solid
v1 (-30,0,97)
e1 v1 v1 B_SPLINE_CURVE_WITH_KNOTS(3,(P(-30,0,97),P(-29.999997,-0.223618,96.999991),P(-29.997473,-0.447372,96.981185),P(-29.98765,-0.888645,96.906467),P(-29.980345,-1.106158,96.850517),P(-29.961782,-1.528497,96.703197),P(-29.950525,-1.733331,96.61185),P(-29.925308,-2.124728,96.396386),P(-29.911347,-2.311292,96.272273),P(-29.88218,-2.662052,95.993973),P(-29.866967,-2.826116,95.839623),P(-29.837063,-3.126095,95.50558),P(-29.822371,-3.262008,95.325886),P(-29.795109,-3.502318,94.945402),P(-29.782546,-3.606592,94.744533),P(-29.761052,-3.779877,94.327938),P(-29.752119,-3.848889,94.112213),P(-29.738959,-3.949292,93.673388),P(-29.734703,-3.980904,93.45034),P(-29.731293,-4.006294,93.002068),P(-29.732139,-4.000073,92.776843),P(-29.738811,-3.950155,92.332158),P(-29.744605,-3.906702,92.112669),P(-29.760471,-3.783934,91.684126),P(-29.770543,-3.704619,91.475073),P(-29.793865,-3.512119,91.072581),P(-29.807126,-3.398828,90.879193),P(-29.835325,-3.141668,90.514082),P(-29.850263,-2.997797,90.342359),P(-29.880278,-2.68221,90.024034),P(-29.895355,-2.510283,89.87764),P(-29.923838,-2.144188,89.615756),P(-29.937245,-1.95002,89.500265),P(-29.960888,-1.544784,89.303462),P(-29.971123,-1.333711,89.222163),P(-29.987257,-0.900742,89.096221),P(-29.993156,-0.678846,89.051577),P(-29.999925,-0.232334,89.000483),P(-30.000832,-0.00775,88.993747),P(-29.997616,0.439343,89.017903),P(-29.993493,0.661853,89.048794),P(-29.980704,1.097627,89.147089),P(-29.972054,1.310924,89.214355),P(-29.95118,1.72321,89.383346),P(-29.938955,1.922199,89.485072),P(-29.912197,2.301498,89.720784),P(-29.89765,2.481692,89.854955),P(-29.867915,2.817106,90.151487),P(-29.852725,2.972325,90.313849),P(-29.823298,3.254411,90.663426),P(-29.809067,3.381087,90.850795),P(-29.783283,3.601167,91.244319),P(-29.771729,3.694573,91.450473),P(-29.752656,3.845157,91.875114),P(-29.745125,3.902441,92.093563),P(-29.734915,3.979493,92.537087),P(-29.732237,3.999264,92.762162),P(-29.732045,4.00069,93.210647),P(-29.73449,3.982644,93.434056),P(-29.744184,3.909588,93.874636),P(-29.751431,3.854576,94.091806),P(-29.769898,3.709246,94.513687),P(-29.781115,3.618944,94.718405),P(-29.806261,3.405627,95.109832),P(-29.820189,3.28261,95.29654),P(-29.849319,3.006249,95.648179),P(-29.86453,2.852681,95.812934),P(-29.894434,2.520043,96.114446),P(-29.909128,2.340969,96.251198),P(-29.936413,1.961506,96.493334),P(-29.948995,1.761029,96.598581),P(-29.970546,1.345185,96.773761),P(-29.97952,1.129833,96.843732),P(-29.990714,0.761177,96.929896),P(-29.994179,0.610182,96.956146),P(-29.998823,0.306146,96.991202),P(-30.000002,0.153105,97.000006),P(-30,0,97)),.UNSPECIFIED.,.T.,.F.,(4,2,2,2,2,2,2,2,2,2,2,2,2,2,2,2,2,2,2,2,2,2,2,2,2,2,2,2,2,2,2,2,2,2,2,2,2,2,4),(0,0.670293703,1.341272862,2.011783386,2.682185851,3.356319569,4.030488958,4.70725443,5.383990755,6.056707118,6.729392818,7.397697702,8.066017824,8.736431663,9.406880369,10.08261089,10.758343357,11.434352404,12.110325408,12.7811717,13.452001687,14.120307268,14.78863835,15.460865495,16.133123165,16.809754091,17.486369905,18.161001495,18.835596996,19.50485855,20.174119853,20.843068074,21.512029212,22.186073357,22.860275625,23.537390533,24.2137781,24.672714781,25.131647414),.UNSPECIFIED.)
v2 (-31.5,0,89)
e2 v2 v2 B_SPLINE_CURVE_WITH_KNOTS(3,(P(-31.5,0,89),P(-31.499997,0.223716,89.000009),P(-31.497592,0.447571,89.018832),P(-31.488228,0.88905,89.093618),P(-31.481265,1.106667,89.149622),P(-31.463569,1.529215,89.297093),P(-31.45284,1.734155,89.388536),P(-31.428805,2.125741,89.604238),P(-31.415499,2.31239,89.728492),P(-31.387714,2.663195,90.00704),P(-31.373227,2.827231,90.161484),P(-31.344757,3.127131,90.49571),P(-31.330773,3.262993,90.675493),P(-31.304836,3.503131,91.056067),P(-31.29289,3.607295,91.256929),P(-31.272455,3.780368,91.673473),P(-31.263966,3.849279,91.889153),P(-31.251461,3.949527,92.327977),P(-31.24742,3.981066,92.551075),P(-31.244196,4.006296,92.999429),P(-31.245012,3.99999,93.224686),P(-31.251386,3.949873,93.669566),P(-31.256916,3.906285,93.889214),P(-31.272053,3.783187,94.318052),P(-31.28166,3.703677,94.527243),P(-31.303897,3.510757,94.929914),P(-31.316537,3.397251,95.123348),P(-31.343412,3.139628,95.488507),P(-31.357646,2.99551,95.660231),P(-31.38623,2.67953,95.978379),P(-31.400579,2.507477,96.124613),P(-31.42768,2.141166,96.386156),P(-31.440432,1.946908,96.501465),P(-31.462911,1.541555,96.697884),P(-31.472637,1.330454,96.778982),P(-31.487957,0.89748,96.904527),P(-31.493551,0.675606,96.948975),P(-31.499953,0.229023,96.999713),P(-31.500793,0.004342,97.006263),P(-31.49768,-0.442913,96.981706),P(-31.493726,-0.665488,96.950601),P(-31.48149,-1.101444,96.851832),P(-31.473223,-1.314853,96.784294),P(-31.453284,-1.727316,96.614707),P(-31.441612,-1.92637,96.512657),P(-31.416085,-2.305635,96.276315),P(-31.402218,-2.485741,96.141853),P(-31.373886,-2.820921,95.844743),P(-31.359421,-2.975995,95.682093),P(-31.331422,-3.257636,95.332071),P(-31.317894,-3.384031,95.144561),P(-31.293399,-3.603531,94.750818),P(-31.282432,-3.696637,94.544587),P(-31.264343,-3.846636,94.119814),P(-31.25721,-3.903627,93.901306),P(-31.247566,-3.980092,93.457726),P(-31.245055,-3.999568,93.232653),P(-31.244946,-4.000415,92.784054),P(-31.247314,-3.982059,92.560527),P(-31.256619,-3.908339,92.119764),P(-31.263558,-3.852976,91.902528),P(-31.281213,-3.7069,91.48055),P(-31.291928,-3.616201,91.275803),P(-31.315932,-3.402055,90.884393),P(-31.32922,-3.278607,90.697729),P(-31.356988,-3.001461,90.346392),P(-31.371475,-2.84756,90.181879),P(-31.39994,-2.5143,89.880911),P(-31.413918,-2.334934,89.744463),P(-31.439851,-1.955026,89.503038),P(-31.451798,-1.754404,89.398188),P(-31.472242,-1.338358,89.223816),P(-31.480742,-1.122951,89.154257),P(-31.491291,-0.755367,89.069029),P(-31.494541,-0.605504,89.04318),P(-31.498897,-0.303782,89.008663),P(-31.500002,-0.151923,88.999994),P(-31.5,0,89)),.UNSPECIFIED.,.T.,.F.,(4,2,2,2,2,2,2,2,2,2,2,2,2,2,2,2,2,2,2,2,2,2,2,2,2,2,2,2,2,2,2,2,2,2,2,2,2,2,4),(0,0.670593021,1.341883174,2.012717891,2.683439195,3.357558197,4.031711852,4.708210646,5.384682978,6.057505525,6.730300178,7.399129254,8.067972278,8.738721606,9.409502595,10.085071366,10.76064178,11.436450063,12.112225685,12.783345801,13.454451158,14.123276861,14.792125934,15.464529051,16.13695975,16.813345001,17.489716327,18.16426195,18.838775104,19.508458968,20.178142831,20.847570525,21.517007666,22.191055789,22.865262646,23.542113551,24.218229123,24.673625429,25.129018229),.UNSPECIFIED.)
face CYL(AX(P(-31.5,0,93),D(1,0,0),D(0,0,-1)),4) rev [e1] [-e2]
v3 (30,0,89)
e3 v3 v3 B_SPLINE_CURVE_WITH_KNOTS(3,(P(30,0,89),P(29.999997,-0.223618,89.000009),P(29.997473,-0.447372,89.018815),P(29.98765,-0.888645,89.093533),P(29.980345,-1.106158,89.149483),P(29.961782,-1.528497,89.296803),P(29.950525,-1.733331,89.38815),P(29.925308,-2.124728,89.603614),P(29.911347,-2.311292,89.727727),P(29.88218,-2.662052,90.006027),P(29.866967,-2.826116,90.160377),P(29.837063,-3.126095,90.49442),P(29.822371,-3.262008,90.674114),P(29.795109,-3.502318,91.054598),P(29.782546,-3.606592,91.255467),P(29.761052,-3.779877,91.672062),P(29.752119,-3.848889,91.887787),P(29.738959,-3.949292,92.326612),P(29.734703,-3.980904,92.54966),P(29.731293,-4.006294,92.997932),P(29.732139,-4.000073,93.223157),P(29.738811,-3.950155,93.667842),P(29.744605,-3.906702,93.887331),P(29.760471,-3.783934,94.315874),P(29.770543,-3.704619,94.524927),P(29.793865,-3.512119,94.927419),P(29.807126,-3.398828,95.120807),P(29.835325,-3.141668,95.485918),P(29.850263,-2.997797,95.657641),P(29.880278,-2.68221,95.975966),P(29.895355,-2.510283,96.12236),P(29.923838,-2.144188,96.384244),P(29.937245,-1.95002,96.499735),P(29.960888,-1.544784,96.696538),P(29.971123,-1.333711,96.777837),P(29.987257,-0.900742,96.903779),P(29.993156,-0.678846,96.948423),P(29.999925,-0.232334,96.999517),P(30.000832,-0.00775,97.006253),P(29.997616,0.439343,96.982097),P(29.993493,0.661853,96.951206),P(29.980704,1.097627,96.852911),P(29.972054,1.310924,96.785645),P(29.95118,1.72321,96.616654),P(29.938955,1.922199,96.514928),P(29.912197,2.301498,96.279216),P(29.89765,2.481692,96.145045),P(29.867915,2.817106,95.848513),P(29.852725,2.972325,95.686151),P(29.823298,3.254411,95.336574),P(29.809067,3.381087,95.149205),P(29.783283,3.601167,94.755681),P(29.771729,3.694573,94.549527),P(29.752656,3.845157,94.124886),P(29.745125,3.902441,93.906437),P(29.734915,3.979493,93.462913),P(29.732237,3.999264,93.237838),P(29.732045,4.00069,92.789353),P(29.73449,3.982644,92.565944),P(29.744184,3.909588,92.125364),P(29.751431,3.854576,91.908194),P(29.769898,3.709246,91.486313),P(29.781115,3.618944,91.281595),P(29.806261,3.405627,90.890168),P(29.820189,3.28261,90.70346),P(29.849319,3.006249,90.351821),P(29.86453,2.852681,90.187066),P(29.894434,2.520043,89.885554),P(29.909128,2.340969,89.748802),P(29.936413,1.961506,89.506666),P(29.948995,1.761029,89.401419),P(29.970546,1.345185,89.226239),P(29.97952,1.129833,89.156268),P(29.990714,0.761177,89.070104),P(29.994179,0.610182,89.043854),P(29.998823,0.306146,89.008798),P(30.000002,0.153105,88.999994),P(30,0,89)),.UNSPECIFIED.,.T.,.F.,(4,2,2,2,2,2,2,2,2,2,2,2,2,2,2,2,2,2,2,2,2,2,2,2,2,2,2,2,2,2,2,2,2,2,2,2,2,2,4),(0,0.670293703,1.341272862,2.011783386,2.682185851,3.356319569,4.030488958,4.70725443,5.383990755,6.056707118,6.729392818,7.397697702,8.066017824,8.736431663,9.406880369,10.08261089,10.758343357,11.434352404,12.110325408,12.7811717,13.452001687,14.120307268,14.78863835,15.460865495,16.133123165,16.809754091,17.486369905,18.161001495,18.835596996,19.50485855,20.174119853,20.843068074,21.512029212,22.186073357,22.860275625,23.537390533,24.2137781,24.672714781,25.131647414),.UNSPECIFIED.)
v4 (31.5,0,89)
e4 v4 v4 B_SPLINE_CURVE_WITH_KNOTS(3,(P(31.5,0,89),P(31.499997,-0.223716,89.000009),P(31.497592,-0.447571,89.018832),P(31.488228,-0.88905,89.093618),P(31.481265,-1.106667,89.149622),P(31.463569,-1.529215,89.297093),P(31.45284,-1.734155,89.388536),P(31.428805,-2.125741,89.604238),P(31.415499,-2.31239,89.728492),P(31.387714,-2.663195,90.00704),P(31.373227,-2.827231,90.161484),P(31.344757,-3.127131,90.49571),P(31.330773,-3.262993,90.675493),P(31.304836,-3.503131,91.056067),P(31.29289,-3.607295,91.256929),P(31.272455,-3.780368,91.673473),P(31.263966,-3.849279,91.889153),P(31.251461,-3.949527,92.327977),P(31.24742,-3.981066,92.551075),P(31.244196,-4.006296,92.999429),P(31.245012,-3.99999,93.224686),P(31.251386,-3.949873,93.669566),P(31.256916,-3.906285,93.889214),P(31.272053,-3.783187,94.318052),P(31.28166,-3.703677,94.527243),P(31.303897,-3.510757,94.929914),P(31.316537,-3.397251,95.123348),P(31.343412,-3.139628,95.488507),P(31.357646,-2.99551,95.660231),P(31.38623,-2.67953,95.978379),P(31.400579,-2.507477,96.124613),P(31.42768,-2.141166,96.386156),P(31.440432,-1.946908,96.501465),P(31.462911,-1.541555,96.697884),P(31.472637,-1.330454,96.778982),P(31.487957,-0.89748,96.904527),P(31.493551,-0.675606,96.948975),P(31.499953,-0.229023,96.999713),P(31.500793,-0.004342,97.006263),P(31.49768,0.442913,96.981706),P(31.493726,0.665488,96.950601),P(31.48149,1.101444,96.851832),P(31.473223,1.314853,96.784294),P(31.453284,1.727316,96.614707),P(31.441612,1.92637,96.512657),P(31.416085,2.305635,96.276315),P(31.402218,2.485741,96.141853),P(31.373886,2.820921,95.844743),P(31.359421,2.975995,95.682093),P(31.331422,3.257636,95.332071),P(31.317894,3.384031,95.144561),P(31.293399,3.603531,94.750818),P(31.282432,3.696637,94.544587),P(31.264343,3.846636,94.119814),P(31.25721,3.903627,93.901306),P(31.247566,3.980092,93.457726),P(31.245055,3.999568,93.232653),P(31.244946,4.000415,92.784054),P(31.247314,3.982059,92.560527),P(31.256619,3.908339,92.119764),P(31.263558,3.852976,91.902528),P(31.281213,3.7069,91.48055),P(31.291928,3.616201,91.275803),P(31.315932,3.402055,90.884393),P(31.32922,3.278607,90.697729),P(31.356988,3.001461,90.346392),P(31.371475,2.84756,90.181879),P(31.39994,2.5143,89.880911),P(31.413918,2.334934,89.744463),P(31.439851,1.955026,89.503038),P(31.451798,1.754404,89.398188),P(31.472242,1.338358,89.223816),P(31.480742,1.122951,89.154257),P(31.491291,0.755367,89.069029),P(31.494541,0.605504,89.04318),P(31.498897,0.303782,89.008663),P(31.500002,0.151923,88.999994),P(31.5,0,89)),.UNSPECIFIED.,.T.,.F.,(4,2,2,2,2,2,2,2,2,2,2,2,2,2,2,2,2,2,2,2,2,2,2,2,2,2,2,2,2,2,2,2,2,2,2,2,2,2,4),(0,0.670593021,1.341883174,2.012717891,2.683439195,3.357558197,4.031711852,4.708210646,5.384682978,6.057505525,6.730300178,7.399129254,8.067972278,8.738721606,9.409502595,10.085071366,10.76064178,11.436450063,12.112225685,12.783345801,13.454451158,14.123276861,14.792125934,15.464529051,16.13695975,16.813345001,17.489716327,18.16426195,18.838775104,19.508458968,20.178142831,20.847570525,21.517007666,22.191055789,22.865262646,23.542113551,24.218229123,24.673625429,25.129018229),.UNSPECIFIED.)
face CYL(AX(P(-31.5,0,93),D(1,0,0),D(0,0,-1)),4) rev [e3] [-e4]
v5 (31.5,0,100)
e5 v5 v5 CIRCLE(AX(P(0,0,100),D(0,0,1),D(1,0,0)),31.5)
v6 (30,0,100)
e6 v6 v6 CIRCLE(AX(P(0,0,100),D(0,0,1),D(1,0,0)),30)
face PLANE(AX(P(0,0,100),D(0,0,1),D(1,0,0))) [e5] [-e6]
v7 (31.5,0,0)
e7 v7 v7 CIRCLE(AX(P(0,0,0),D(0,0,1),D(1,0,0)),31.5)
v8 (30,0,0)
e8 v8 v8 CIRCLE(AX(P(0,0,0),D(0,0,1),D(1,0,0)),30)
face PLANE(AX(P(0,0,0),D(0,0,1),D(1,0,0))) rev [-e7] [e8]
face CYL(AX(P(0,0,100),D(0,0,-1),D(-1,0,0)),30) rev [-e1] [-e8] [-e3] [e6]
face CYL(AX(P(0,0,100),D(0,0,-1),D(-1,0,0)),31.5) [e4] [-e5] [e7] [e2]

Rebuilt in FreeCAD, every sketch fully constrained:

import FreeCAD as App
import Part
import Sketcher
Q = App.Units.Quantity

doc = App.newDocument("Part")
body = doc.addObject("PartDesign::Body", "Body")

# Sketch on XY plane
sketch1 = body.newObject("Sketcher::SketchObject", "Sketch")
sketch1.AttachmentSupport = (doc.getObject("XY_Plane"), [""])
sketch1.MapMode = "FlatFace"
sketch1.addGeometry(Part.Circle(App.Vector(0, 0, 0), App.Vector(0, 0, 1), 32), False)
sketch1.addGeometry(Part.Circle(App.Vector(0, 0, 0), App.Vector(0, 0, 1), 30), False)
sketch1.addConstraint(Sketcher.Constraint("Coincident", 0, 3, -1, 1))
sketch1.addConstraint(Sketcher.Constraint("Coincident", 1, 3, -1, 1))
sketch1.addConstraint(Sketcher.Constraint("Diameter", 0, Q("63 mm")))
sketch1.addConstraint(Sketcher.Constraint("Diameter", 1, Q("60 mm")))
pad1 = body.newObject("PartDesign::Pad", "Pad")
pad1.Profile = sketch1
pad1.Length = 100

# Sketch on YZ plane
sketch2 = body.newObject("Sketcher::SketchObject", "Sketch001")
sketch2.AttachmentSupport = (doc.getObject("YZ_Plane"), [""])
sketch2.MapMode = "FlatFace"
sketch2.addGeometry(Part.Circle(App.Vector(0, 93, 0), App.Vector(0, 0, 1), 4), False)
sketch2.addConstraint(Sketcher.Constraint("PointOnObject", 0, 3, -2))
sketch2.addConstraint(Sketcher.Constraint("Diameter", 0, Q("8 mm")))
sketch2.addConstraint(Sketcher.Constraint("DistanceY", -1, 1, 0, 3, Q("93 mm")))
pocket1 = body.newObject("PartDesign::Pocket", "Pocket")
pocket1.Profile = sketch2
pocket1.Type = "ThroughAll"
pocket1.Midplane = True

doc.recompute()
